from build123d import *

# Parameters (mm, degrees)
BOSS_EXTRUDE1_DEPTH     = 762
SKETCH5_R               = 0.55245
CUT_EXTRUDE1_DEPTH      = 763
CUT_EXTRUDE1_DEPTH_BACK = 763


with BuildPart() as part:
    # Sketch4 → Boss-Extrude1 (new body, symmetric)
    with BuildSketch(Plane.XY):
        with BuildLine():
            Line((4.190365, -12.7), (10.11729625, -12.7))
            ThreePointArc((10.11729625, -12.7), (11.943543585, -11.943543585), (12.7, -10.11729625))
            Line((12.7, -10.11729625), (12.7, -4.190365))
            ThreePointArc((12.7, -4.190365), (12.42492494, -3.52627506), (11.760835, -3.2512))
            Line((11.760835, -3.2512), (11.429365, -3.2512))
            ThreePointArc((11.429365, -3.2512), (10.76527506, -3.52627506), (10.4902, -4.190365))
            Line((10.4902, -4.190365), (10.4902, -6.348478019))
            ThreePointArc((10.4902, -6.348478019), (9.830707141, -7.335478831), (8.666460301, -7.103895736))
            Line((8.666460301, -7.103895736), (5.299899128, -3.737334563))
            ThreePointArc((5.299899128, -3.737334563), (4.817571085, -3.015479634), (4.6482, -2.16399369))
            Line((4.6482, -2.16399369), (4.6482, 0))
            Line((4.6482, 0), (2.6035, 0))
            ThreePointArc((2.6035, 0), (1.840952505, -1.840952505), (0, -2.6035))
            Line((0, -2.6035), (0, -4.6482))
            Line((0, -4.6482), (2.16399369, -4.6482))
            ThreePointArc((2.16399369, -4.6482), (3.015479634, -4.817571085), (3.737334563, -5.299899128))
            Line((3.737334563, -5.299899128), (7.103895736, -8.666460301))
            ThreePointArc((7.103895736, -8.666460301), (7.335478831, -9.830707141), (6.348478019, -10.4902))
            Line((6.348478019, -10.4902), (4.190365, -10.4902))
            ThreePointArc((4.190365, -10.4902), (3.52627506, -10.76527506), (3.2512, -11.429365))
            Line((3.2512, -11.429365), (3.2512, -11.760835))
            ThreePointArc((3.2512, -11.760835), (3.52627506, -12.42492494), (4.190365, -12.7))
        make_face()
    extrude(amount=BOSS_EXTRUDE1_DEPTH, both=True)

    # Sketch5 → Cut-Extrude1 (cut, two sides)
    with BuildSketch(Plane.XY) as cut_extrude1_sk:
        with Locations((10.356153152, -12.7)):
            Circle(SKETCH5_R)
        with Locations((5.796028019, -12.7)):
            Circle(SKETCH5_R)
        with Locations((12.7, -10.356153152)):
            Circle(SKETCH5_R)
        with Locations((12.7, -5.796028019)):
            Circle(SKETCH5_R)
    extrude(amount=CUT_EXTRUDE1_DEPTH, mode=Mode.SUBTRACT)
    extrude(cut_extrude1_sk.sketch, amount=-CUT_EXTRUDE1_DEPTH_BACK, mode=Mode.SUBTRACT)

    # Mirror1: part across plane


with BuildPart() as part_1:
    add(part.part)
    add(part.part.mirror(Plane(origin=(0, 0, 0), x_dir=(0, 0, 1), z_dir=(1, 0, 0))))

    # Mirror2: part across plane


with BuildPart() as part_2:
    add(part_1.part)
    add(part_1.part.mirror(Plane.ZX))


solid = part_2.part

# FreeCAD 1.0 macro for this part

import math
import FreeCAD as App
import Part
import Sketcher
Q = App.Units.Quantity

doc = App.newDocument("Part")
body = doc.addObject("PartDesign::Body", "Body")

# Sketch on XY plane
sketch1 = doc.addObject("Sketcher::SketchObject", "Sketch")
body.addObject(sketch1)
sketch1.AttachmentSupport = (doc.XY_Plane, [""])
sketch1.MapMode = "FlatFace"
sketch1.addGeometry([
    Part.LineSegment(App.Vector(4.19, -12.7, 0), App.Vector(10.12, -12.7, 0)),  # 0
    Part.ArcOfCircle(Part.Circle(App.Vector(10.12, -10.12, 0), App.Vector(0, 0, 1), 2.58), math.radians(-90), math.radians(0)),  # 1
    Part.LineSegment(App.Vector(12.7, -10.12, 0), App.Vector(12.7, -4.19, 0)),  # 2
    Part.ArcOfCircle(Part.Circle(App.Vector(11.76, -4.19, 0), App.Vector(0, 0, 1), 0.94), math.radians(0), math.radians(90)),  # 3
    Part.LineSegment(App.Vector(11.76, -3.25, 0), App.Vector(11.43, -3.25, 0)),  # 4
    Part.ArcOfCircle(Part.Circle(App.Vector(11.43, -4.19, 0), App.Vector(0, 0, 1), 0.94), math.radians(90), math.radians(180)),  # 5
    Part.LineSegment(App.Vector(10.49, -4.19, 0), App.Vector(10.49, -6.35, 0)),  # 6
    Part.ArcOfCircle(Part.Circle(App.Vector(9.42, -6.35, 0), App.Vector(0, 0, 1), 1.07), math.radians(-135), math.radians(0)),  # 7
    Part.LineSegment(App.Vector(8.67, -7.1, 0), App.Vector(5.3, -3.74, 0)),  # 8
    Part.ArcOfCircle(Part.Circle(App.Vector(6.87, -2.16, 0), App.Vector(0, 0, 1), 2.23), math.radians(-180), math.radians(-135)),  # 9
    Part.LineSegment(App.Vector(4.65, -2.16, 0), App.Vector(4.65, 0, 0)),  # 10
    Part.LineSegment(App.Vector(4.65, 0, 0), App.Vector(2.6, 0, 0)),  # 11
    Part.ArcOfCircle(Part.Circle(App.Vector(0, 0, 0), App.Vector(0, 0, 1), 2.6), math.radians(-90), math.radians(0)),  # 12
    Part.LineSegment(App.Vector(0, -2.6, 0), App.Vector(0, -4.65, 0)),  # 13
    Part.LineSegment(App.Vector(0, -4.65, 0), App.Vector(2.16, -4.65, 0)),  # 14
    Part.ArcOfCircle(Part.Circle(App.Vector(2.16, -6.87, 0), App.Vector(0, 0, 1), 2.23), math.radians(45), math.radians(90)),  # 15
    Part.LineSegment(App.Vector(3.74, -5.3, 0), App.Vector(7.1, -8.67, 0)),  # 16
    Part.ArcOfCircle(Part.Circle(App.Vector(6.35, -9.42, 0), App.Vector(0, 0, 1), 1.07), math.radians(-90), math.radians(45)),  # 17
    Part.LineSegment(App.Vector(6.35, -10.49, 0), App.Vector(4.19, -10.49, 0)),  # 18
    Part.ArcOfCircle(Part.Circle(App.Vector(4.19, -11.43, 0), App.Vector(0, 0, 1), 0.94), math.radians(90), math.radians(180)),  # 19
    Part.LineSegment(App.Vector(3.25, -11.43, 0), App.Vector(3.25, -11.76, 0)),  # 20
    Part.ArcOfCircle(Part.Circle(App.Vector(4.19, -11.76, 0), App.Vector(0, 0, 1), 0.94), math.radians(-180), math.radians(-90)),  # 21
], False)
sketch1.addConstraint([
    Sketcher.Constraint("Tangent", 0, 2, 1, 1),
    Sketcher.Constraint("Tangent", 1, 2, 2, 1),
    Sketcher.Constraint("Tangent", 2, 2, 3, 1),
    Sketcher.Constraint("Tangent", 3, 2, 4, 1),
    Sketcher.Constraint("Tangent", 4, 2, 5, 1),
    Sketcher.Constraint("Tangent", 5, 2, 6, 1),
    Sketcher.Constraint("Tangent", 6, 2, 7, 2),
    Sketcher.Constraint("Tangent", 7, 1, 8, 1),
    Sketcher.Constraint("Tangent", 8, 2, 9, 2),
    Sketcher.Constraint("Tangent", 9, 1, 10, 1),
    Sketcher.Constraint("Coincident", 10, 2, 11, 1),
    Sketcher.Constraint("Coincident", 11, 2, 12, 2),
    Sketcher.Constraint("Coincident", 12, 1, 13, 1),
    Sketcher.Constraint("Coincident", 13, 2, 14, 1),
    Sketcher.Constraint("Tangent", 14, 2, 15, 2),
    Sketcher.Constraint("Tangent", 15, 1, 16, 1),
    Sketcher.Constraint("Tangent", 16, 2, 17, 2),
    Sketcher.Constraint("Tangent", 17, 1, 18, 1),
    Sketcher.Constraint("Tangent", 18, 2, 19, 1),
    Sketcher.Constraint("Tangent", 19, 2, 20, 1),
    Sketcher.Constraint("Tangent", 20, 2, 21, 1),
    Sketcher.Constraint("Tangent", 21, 2, 0, 1),
    Sketcher.Constraint("Horizontal", 0),
    Sketcher.Constraint("Vertical", 2),
    Sketcher.Constraint("Horizontal", 4),
    Sketcher.Constraint("Vertical", 6),
    Sketcher.Constraint("Vertical", 10),
    Sketcher.Constraint("Horizontal", 11),
    Sketcher.Constraint("Vertical", 13),
    Sketcher.Constraint("Horizontal", 14),
    Sketcher.Constraint("Horizontal", 18),
    Sketcher.Constraint("Vertical", 20),
    Sketcher.Constraint("Coincident", 12, 3, -1, 1),
    Sketcher.Constraint("Equal", 3, 5),
    Sketcher.Constraint("Equal", 9, 15),
    Sketcher.Constraint("Equal", 7, 17),
    Sketcher.Constraint("Equal", 5, 19),
    Sketcher.Constraint("Equal", 19, 21),
    Sketcher.Constraint("PointOnObject", 10, 2, -1),
    Sketcher.Constraint("PointOnObject", 12, 1, -2),
    Sketcher.Constraint("Parallel", 8, 16),
    Sketcher.Constraint("Equal", 0, 2),
    Sketcher.Constraint("Equal", 18, 6),
    Sketcher.Constraint("Equal", 14, 10),
    Sketcher.Constraint("Equal", 11, 13),
    Sketcher.Constraint("Equal", 4, 20),
    Sketcher.Constraint("Equal", 8, 16),
    Sketcher.Constraint("DistanceY", 0, 2, -1, 1, Q("0.5 in")),
    Sketcher.Constraint("Radius", 9, Q("0.0876 in")),
    Sketcher.Constraint("Radius", 12, Q("0.1025 in")),
    Sketcher.Constraint("DistanceX", 9, 1, 5, 2, Q("0.23 in")),
    Sketcher.Constraint("DistanceX", 11, 2, 11, 1, Q("0.0805 in")),
    Sketcher.Constraint("DistanceY", 3, 2, -1, 1, Q("0.128 in")),
    Sketcher.Constraint("Radius", 7, Q("1.068322 mm")),
    Sketcher.Constraint("DistanceX", 17, 3, 7, 3, Q("0.121 in")),
    Sketcher.Constraint("Radius", 1, Q("2.582704 mm")),
    Sketcher.Constraint("Radius", 3, Q("0.939165 mm")),
])
pad1 = doc.addObject("PartDesign::Pad", "Pad")
body.addObject(pad1)
pad1.Profile = sketch1
pad1.Length = Q("60 in")
pad1.Midplane = True

# Sketch on XY plane
sketch2 = doc.addObject("Sketcher::SketchObject", "Sketch001")
body.addObject(sketch2)
sketch2.AttachmentSupport = (doc.XY_Plane, [""])
sketch2.MapMode = "FlatFace"
sketch2.addGeometry([
    Part.Circle(App.Vector(10.4, -12.7, 0), App.Vector(0, 0, 1), 0.6),
    Part.Circle(App.Vector(5.8, -12.7, 0), App.Vector(0, 0, 1), 0.6),
    Part.Circle(App.Vector(12.7, -10.4, 0), App.Vector(0, 0, 1), 0.6),
    Part.Circle(App.Vector(12.7, -5.8, 0), App.Vector(0, 0, 1), 0.6),
], False)
sketch2.addConstraint([
    Sketcher.Constraint("Equal", 0, 1),
    Sketcher.Constraint("Equal", 1, 2),
    Sketcher.Constraint("Equal", 2, 3),
    Sketcher.Constraint("Horizontal", 0, 3, 1, 3),
    Sketcher.Constraint("Vertical", 2, 3, 3, 3),
    Sketcher.Constraint("Diameter", 0, Q("0.0435 in")),
    Sketcher.Constraint("DistanceY", 0, 3, -1, 1, Q("0.5 in")),
    Sketcher.Constraint("DistanceX", -1, 1, 2, 3, Q("0.5 in")),
    Sketcher.Constraint("DistanceX", -1, 1, 1, 3, Q("5.796028 mm")),
    Sketcher.Constraint("DistanceY", 3, 3, -1, 1, Q("5.796028 mm")),
    Sketcher.Constraint("DistanceX", -1, 1, 0, 3, Q("10.356153 mm")),
    Sketcher.Constraint("DistanceY", 2, 3, -1, 1, Q("10.356153 mm")),
])
pocket1 = doc.addObject("PartDesign::Pocket", "Pocket")
body.addObject(pocket1)
pocket1.Profile = sketch2
pocket1.Type = "ThroughAll"
pocket1.Midplane = True
body2 = doc.addObject("PartDesign::Body", "Body001")
doc.recompute()

body2.BaseFeature = body
doc.recompute()

mirroring = doc.addObject("Part::Mirroring", "Mirroring")
mirroring.Source = body
mirroring.Base = App.Vector(0, 0, 0)
mirroring.Normal = App.Vector(1, 0, 0)
body3 = doc.addObject("PartDesign::Body", "Body002")
body3.BaseFeature = mirroring
boolean = doc.addObject("PartDesign::Boolean", "Boolean")
body2.addObject(boolean)
boolean.Type = "Fuse"
boolean.addObjects([body3])
doc.recompute()
body4 = doc.addObject("PartDesign::Body", "Body003")
doc.recompute()

body4.BaseFeature = body2
doc.recompute()

mirroring2 = doc.addObject("Part::Mirroring", "Mirroring001")
mirroring2.Source = body2
mirroring2.Base = App.Vector(0, 0, 0)
mirroring2.Normal = App.Vector(0, 1, 0)
body5 = doc.addObject("PartDesign::Body", "Body004")
body5.BaseFeature = mirroring2
boolean2 = doc.addObject("PartDesign::Boolean", "Boolean001")
body4.addObject(boolean2)
boolean2.Type = "Fuse"
boolean2.addObjects([body5])
doc.recompute()
mirroring.Visibility = False
mirroring2.Visibility = False

doc.recompute()
